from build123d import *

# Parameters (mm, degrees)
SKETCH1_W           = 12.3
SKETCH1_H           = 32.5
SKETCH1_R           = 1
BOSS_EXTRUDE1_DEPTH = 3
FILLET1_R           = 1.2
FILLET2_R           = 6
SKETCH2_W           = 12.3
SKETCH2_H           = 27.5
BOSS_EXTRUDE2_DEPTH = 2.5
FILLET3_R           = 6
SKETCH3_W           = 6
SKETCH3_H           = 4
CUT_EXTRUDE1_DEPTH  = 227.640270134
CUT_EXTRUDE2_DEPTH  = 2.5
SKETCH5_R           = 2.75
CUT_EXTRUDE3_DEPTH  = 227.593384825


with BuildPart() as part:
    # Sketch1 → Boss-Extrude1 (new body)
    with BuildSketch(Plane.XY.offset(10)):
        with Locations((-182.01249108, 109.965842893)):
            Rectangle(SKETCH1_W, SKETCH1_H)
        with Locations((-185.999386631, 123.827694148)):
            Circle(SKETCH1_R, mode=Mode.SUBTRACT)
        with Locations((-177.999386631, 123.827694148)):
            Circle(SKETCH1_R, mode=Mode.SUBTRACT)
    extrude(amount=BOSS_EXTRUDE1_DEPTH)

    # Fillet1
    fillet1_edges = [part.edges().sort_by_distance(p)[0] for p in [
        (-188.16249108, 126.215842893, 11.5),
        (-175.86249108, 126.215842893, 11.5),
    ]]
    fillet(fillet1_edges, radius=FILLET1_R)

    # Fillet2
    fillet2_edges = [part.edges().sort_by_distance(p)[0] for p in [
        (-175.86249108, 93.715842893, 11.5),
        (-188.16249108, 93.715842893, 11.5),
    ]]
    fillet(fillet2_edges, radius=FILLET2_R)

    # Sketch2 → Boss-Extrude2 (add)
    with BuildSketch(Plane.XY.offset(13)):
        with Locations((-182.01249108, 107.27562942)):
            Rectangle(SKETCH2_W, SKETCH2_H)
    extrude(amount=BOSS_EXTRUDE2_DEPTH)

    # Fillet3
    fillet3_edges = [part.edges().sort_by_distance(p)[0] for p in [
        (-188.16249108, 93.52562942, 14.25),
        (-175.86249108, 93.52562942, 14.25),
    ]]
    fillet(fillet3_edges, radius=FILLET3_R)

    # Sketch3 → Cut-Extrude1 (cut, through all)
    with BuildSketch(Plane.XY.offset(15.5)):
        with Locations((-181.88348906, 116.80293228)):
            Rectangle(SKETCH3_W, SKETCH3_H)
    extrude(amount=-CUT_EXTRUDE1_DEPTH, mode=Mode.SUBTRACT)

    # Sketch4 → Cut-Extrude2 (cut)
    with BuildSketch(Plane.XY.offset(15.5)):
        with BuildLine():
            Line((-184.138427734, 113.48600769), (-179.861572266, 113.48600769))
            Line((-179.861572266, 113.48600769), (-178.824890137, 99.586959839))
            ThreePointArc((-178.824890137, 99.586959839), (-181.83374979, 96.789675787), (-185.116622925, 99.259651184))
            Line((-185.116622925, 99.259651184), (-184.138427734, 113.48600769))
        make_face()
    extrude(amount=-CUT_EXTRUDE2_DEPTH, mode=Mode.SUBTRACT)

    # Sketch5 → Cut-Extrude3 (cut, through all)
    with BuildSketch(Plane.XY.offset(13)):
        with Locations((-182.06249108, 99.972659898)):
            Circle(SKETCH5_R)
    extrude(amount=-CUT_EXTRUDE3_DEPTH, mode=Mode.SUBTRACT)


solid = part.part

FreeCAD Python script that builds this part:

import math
import FreeCAD as App
import Part
import Sketcher

V = App.Vector


def edges_at(feature, points):
    """Names of the edges that pass closest to the given points."""
    edges = feature.Shape.Edges
    near = lambda p: min(range(len(edges)), key=lambda i: edges[i].distToShape(Part.Vertex(*p))[0])
    return sorted({f"Edge{near(p) + 1}" for p in points})

doc = App.newDocument("Part")
body = doc.addObject("PartDesign::Body", "Body")

# Sketch on XY plane
sketch1 = body.newObject("Sketcher::SketchObject", "Sketch")
sketch1.AttachmentSupport = (doc.getObject("XY_Plane"), [""])
sketch1.MapMode = "FlatFace"
sketch1.AttachmentOffset = App.Placement(V(0, 0, 10), App.Rotation())
sketch1.addGeometry(Part.LineSegment(V(-188.162491, 126.215843, 0), V(-188.162491, 93.715843, 0)), False)
sketch1.addGeometry(Part.LineSegment(V(-188.162491, 93.715843, 0), V(-175.862491, 93.715843, 0)), False)
sketch1.addGeometry(Part.LineSegment(V(-175.862491, 93.715843, 0), V(-175.862491, 126.215843, 0)), False)
sketch1.addGeometry(Part.LineSegment(V(-175.862491, 126.215843, 0), V(-188.162491, 126.215843, 0)), False)
sketch1.addGeometry(Part.Circle(V(-185.999387, 123.827694, 0), V(0, 0, 1), 1), False)
sketch1.addGeometry(Part.Circle(V(-177.999387, 123.827694, 0), V(0, 0, 1), 1), False)
sketch1.addConstraint(Sketcher.Constraint("Coincident", 0, 2, 1, 1))
sketch1.addConstraint(Sketcher.Constraint("Coincident", 1, 2, 2, 1))
sketch1.addConstraint(Sketcher.Constraint("Coincident", 2, 2, 3, 1))
sketch1.addConstraint(Sketcher.Constraint("Coincident", 3, 2, 0, 1))
sketch1.addConstraint(Sketcher.Constraint("Vertical", 0))
sketch1.addConstraint(Sketcher.Constraint("Horizontal", 1))
sketch1.addConstraint(Sketcher.Constraint("Vertical", 2))
sketch1.addConstraint(Sketcher.Constraint("Horizontal", 3))
sketch1.addConstraint(Sketcher.Constraint("Equal", 4, 5))
sketch1.addConstraint(Sketcher.Constraint("Horizontal", 4, 3, 5, 3))
sketch1.addConstraint(Sketcher.Constraint("Diameter", 4, 2.0))
sketch1.addConstraint(Sketcher.Constraint("DistanceX", 1, 1, 1, 2, 12.3))
sketch1.addConstraint(Sketcher.Constraint("DistanceY", 0, 2, 0, 1, 32.5))
sketch1.addConstraint(Sketcher.Constraint("DistanceX", 4, 3, 5, 3, 8.0))
sketch1.addConstraint(Sketcher.Constraint("DistanceX", 0, 2, -1, 1, 188.162491))
sketch1.addConstraint(Sketcher.Constraint("DistanceY", 0, 2, 4, 3, 30.111851))
sketch1.addConstraint(Sketcher.Constraint("DistanceX", 4, 3, -1, 1, 185.999387))
sketch1.addConstraint(Sketcher.Constraint("DistanceY", -1, 1, 4, 3, 123.827694))
pad1 = body.newObject("PartDesign::Pad", "Pad")
pad1.Profile = sketch1
pad1.Length = 3
doc.recompute()

fillet = body.newObject("PartDesign::Fillet", "Fillet")
fillet.Base = (pad1, edges_at(pad1, [(-188.162, 126.216, 11.5), (-175.862, 126.216, 11.5)]))
fillet.Radius = 1.2
doc.recompute()

fillet2 = body.newObject("PartDesign::Fillet", "Fillet001")
fillet2.Base = (fillet, edges_at(fillet, [(-175.862, 93.716, 11.5), (-188.162, 93.716, 11.5)]))
fillet2.Radius = 6

# Sketch on XY plane
sketch2 = body.newObject("Sketcher::SketchObject", "Sketch001")
sketch2.AttachmentSupport = (doc.getObject("XY_Plane"), [""])
sketch2.MapMode = "FlatFace"
sketch2.AttachmentOffset = App.Placement(V(0, 0, 13), App.Rotation())
sketch2.addGeometry(Part.LineSegment(V(-188.162491, 121.025629, 0), V(-188.162491, 93.525629, 0)), False)
sketch2.addGeometry(Part.LineSegment(V(-188.162491, 93.525629, 0), V(-175.862491, 93.525629, 0)), False)
sketch2.addGeometry(Part.LineSegment(V(-175.862491, 93.525629, 0), V(-175.862491, 121.025629, 0)), False)
sketch2.addGeometry(Part.LineSegment(V(-175.862491, 121.025629, 0), V(-188.162491, 121.025629, 0)), False)
sketch2.addConstraint(Sketcher.Constraint("Coincident", 0, 2, 1, 1))
sketch2.addConstraint(Sketcher.Constraint("Coincident", 1, 2, 2, 1))
sketch2.addConstraint(Sketcher.Constraint("Coincident", 2, 2, 3, 1))
sketch2.addConstraint(Sketcher.Constraint("Coincident", 3, 2, 0, 1))
sketch2.addConstraint(Sketcher.Constraint("Vertical", 0))
sketch2.addConstraint(Sketcher.Constraint("Horizontal", 1))
sketch2.addConstraint(Sketcher.Constraint("Vertical", 2))
sketch2.addConstraint(Sketcher.Constraint("Horizontal", 3))
sketch2.addConstraint(Sketcher.Constraint("DistanceX", 1, 1, 1, 2, 12.3))
sketch2.addConstraint(Sketcher.Constraint("DistanceY", 0, 2, 0, 1, 27.5))
sketch2.addConstraint(Sketcher.Constraint("DistanceX", 0, 2, -1, 1, 188.162491))
sketch2.addConstraint(Sketcher.Constraint("DistanceY", -1, 1, 0, 2, 93.525629))
pad2 = body.newObject("PartDesign::Pad", "Pad001")
pad2.Profile = sketch2
pad2.Length = 2.5
doc.recompute()

fillet3 = body.newObject("PartDesign::Fillet", "Fillet002")
fillet3.Base = (pad2, edges_at(pad2, [(-188.162, 93.526, 14.25), (-175.862, 93.526, 14.25)]))
fillet3.Radius = 6

# Sketch on XY plane
sketch3 = body.newObject("Sketcher::SketchObject", "Sketch002")
sketch3.AttachmentSupport = (doc.getObject("XY_Plane"), [""])
sketch3.MapMode = "FlatFace"
sketch3.AttachmentOffset = App.Placement(V(0, 0, 15.5), App.Rotation())
sketch3.addGeometry(Part.LineSegment(V(-184.883489, 118.802932, 0), V(-184.883489, 114.802932, 0)), False)
sketch3.addGeometry(Part.LineSegment(V(-184.883489, 114.802932, 0), V(-178.883489, 114.802932, 0)), False)
sketch3.addGeometry(Part.LineSegment(V(-178.883489, 114.802932, 0), V(-178.883489, 118.802932, 0)), False)
sketch3.addGeometry(Part.LineSegment(V(-178.883489, 118.802932, 0), V(-184.883489, 118.802932, 0)), False)
sketch3.addConstraint(Sketcher.Constraint("Coincident", 0, 2, 1, 1))
sketch3.addConstraint(Sketcher.Constraint("Coincident", 1, 2, 2, 1))
sketch3.addConstraint(Sketcher.Constraint("Coincident", 2, 2, 3, 1))
sketch3.addConstraint(Sketcher.Constraint("Coincident", 3, 2, 0, 1))
sketch3.addConstraint(Sketcher.Constraint("Vertical", 0))
sketch3.addConstraint(Sketcher.Constraint("Horizontal", 1))
sketch3.addConstraint(Sketcher.Constraint("Vertical", 2))
sketch3.addConstraint(Sketcher.Constraint("Horizontal", 3))
sketch3.addConstraint(Sketcher.Constraint("DistanceX", 1, 1, 1, 2, 6.0))
sketch3.addConstraint(Sketcher.Constraint("DistanceY", 0, 2, 0, 1, 4.0))
sketch3.addConstraint(Sketcher.Constraint("DistanceX", 0, 2, -1, 1, 184.883489))
sketch3.addConstraint(Sketcher.Constraint("DistanceY", -1, 1, 0, 2, 114.802932))
pocket1 = body.newObject("PartDesign::Pocket", "Pocket")
pocket1.Profile = sketch3
pocket1.Type = "ThroughAll"

# Sketch on XY plane
sketch4 = body.newObject("Sketcher::SketchObject", "Sketch003")
sketch4.AttachmentSupport = (doc.getObject("XY_Plane"), [""])
sketch4.MapMode = "FlatFace"
sketch4.AttachmentOffset = App.Placement(V(0, 0, 15.5), App.Rotation())
sketch4.addGeometry(Part.LineSegment(V(-179.861572, 113.486008, 0), V(-184.138428, 113.486008, 0)), False)
sketch4.addGeometry(Part.LineSegment(V(-184.138428, 113.486008, 0), V(-185.116623, 99.259651, 0)), False)
sketch4.addGeometry(Part.ArcOfCircle(Part.Circle(V(-181.999996, 99.985357, 0), V(0, 0, 1), 3.200002), math.radians(-166.892262), math.radians(-7.151822)), False)
sketch4.addGeometry(Part.LineSegment(V(-178.82489, 99.58696, 0), V(-179.861572, 113.486008, 0)), False)
sketch4.addConstraint(Sketcher.Constraint("Coincident", 0, 2, 1, 1))
sketch4.addConstraint(Sketcher.Constraint("Coincident", 1, 2, 2, 1))
sketch4.addConstraint(Sketcher.Constraint("Coincident", 2, 2, 3, 1))
sketch4.addConstraint(Sketcher.Constraint("Coincident", 3, 2, 0, 1))
sketch4.addConstraint(Sketcher.Constraint("Horizontal", 0))
sketch4.addConstraint(Sketcher.Constraint("Radius", 2, 3.200002))
sketch4.addConstraint(Sketcher.Constraint("DistanceX", 0, 2, 0, 1, 4.276855))
sketch4.addConstraint(Sketcher.Constraint("DistanceY", -1, 1, 1, 2, 99.259651))
sketch4.addConstraint(Sketcher.Constraint("DistanceX", 2, 2, -1, 1, 178.82489))
sketch4.addConstraint(Sketcher.Constraint("DistanceY", -1, 1, 2, 2, 99.58696))
sketch4.addConstraint(Sketcher.Constraint("DistanceY", 2, 3, 0, 2, 13.500651))
sketch4.addConstraint(Sketcher.Constraint("DistanceX", 1, 2, 3, 2, 5.255051))
sketch4.addConstraint(Sketcher.Constraint("Distance", 1, 14.259947))
pocket2 = body.newObject("PartDesign::Pocket", "Pocket001")
pocket2.Profile = sketch4
pocket2.Length = 2.5

# Sketch on XY plane
sketch5 = body.newObject("Sketcher::SketchObject", "Sketch004")
sketch5.AttachmentSupport = (doc.getObject("XY_Plane"), [""])
sketch5.MapMode = "FlatFace"
sketch5.AttachmentOffset = App.Placement(V(0, 0, 13), App.Rotation())
sketch5.addGeometry(Part.Circle(V(-182.062491, 99.97266, 0), V(0, 0, 1), 2.75), False)
sketch5.addConstraint(Sketcher.Constraint("Diameter", 0, 5.5))
sketch5.addConstraint(Sketcher.Constraint("DistanceX", 0, 3, -1, 1, 182.062491))
sketch5.addConstraint(Sketcher.Constraint("DistanceY", -1, 1, 0, 3, 99.97266))
pocket3 = body.newObject("PartDesign::Pocket", "Pocket002")
pocket3.Profile = sketch5
pocket3.Type = "ThroughAll"

doc.recompute()
